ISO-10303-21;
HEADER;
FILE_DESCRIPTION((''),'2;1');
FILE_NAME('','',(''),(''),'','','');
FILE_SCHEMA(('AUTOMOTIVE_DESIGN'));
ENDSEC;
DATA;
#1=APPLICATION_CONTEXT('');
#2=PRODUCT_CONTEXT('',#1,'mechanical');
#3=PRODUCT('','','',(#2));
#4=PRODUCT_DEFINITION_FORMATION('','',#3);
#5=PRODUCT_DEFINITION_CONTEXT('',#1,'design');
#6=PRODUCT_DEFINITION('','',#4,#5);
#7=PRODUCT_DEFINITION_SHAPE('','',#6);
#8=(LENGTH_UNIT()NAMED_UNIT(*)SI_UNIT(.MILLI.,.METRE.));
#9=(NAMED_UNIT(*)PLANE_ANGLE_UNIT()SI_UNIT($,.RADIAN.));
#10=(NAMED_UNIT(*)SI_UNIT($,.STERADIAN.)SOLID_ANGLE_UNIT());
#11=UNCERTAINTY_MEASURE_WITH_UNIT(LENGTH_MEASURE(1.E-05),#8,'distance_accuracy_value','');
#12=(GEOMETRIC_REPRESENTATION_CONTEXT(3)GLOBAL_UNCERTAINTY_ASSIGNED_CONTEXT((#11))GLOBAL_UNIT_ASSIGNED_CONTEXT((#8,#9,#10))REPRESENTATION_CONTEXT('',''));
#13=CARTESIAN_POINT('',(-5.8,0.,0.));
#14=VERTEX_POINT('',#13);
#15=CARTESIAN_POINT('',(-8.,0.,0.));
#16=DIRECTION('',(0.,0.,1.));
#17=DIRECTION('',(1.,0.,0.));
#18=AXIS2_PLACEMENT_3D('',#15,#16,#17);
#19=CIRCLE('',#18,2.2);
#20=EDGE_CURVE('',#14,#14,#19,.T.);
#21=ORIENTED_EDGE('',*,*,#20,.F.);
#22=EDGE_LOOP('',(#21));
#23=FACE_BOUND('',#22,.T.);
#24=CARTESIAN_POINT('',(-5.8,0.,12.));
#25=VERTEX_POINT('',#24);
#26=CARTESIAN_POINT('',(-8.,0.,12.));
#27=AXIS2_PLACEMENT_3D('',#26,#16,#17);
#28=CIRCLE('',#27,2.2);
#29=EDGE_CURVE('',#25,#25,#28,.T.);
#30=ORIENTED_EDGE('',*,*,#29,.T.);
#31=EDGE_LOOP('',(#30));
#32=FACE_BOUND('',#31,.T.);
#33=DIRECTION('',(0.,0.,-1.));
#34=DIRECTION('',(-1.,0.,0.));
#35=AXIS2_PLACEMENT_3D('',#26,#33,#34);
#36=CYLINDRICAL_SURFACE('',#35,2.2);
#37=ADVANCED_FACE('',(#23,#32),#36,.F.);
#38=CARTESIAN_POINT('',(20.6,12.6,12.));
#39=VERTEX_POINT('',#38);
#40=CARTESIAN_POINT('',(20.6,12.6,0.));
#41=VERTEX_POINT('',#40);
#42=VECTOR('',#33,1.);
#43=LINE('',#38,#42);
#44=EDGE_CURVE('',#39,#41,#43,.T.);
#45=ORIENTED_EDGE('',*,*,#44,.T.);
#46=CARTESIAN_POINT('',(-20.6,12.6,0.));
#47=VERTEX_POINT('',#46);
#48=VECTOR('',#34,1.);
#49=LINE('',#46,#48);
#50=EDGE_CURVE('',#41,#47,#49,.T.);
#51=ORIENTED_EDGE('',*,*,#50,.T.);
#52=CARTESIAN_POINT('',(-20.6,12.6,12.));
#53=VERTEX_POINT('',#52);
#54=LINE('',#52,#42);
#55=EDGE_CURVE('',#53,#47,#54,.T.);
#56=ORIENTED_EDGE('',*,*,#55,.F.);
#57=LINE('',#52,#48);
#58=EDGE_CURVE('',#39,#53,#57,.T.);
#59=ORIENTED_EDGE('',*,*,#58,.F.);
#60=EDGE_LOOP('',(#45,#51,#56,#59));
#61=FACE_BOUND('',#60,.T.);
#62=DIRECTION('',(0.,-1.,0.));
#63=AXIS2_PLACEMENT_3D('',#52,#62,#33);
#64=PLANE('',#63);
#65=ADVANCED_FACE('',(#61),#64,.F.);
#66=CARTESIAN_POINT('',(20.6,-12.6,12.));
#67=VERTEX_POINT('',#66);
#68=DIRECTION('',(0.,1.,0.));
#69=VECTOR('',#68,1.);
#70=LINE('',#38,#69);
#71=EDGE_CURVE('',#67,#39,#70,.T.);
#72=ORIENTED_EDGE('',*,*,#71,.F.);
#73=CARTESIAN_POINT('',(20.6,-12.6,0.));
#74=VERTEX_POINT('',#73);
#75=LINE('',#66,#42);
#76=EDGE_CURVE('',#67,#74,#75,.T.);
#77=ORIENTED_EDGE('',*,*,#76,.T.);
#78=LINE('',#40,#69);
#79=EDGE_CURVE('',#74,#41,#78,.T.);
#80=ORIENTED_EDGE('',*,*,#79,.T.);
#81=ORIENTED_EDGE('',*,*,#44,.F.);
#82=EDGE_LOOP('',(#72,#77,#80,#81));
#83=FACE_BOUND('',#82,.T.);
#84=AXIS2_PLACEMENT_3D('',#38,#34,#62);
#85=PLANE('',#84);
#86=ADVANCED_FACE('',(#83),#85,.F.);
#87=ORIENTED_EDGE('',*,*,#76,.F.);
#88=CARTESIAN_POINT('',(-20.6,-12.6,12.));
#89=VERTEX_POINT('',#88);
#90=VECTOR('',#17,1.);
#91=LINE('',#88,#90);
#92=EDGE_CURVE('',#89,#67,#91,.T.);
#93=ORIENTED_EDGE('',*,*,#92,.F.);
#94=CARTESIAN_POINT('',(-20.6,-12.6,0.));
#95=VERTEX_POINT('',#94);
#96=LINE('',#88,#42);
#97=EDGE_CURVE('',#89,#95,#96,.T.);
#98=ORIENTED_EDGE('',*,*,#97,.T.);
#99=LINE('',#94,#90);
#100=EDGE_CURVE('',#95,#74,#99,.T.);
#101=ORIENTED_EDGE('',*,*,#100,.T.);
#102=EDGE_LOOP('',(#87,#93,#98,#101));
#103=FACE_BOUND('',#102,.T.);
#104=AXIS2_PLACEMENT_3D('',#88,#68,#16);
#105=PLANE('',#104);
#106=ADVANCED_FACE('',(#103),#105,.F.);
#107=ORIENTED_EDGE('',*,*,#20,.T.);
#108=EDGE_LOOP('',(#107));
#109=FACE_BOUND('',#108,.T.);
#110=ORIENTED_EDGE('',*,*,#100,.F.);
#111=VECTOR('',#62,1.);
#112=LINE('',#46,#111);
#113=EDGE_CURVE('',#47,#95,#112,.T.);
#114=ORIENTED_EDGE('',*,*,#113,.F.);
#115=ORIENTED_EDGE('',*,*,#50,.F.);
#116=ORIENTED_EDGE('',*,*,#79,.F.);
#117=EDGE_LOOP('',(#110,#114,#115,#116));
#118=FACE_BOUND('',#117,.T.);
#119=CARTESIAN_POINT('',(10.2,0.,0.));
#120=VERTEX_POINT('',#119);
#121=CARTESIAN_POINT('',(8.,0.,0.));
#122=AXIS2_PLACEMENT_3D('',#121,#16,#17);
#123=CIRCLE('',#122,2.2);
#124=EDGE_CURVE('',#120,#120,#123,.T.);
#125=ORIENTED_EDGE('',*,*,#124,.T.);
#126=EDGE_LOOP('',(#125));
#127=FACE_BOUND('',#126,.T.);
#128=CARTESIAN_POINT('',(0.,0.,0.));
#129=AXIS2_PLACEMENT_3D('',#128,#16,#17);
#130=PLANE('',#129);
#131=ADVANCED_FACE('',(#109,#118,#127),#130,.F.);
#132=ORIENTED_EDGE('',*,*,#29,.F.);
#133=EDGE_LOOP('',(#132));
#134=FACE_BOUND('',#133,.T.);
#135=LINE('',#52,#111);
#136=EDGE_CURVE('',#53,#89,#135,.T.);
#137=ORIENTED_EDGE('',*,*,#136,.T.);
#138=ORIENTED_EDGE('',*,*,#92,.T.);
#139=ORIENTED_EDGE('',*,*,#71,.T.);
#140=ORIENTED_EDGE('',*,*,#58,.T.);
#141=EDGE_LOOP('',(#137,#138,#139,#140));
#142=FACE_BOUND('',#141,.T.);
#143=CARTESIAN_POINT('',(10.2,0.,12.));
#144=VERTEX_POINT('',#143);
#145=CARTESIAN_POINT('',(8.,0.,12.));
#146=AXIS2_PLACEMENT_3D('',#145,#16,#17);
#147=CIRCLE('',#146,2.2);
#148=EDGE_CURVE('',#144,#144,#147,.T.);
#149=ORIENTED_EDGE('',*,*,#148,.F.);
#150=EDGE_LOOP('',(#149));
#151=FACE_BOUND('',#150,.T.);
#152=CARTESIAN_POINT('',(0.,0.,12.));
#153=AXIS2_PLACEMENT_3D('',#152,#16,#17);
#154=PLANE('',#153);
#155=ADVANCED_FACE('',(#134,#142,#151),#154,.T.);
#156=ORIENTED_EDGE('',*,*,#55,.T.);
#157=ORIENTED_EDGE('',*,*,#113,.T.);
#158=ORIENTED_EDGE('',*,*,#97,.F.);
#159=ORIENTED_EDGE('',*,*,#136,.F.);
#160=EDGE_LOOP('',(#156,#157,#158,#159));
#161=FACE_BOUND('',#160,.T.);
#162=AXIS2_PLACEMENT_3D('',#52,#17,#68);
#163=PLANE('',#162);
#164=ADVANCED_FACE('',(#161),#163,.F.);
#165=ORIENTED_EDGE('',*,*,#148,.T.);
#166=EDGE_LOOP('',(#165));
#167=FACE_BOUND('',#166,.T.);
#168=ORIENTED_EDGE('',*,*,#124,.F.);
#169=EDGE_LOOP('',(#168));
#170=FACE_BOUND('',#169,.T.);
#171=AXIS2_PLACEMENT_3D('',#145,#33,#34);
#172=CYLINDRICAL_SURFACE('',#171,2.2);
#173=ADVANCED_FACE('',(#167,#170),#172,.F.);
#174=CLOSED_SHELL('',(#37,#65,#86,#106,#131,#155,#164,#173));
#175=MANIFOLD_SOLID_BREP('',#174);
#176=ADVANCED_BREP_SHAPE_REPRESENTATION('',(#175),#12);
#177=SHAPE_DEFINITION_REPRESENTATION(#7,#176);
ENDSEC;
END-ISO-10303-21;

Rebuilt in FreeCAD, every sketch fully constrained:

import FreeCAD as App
import Part
import Sketcher
from FreeCAD import Vector
Q = App.Units.Quantity

doc = App.newDocument("Part")
body = doc.addObject("PartDesign::Body", "Body")

# Sketch on XY plane
sketch1 = body.newObject("Sketcher::SketchObject", "Sketch")
sketch1.AttachmentSupport = (doc.getObject("XY_Plane"), [""])
sketch1.MapMode = "FlatFace"
sketch1.addGeometry(Part.LineSegment(Vector(-20.6, 12.6, 0), Vector(-20.6, -12.6, 0)), False)
sketch1.addGeometry(Part.LineSegment(Vector(-20.6, -12.6, 0), Vector(20.6, -12.6, 0)), False)
sketch1.addGeometry(Part.LineSegment(Vector(20.6, -12.6, 0), Vector(20.6, 12.6, 0)), False)
sketch1.addGeometry(Part.LineSegment(Vector(20.6, 12.6, 0), Vector(-20.6, 12.6, 0)), False)
sketch1.addConstraint(Sketcher.Constraint("Coincident", 0, 2, 1, 1))
sketch1.addConstraint(Sketcher.Constraint("Coincident", 1, 2, 2, 1))
sketch1.addConstraint(Sketcher.Constraint("Coincident", 2, 2, 3, 1))
sketch1.addConstraint(Sketcher.Constraint("Coincident", 3, 2, 0, 1))
sketch1.addConstraint(Sketcher.Constraint("Vertical", 0))
sketch1.addConstraint(Sketcher.Constraint("Horizontal", 1))
sketch1.addConstraint(Sketcher.Constraint("Vertical", 2))
sketch1.addConstraint(Sketcher.Constraint("Horizontal", 3))
sketch1.addConstraint(Sketcher.Constraint("Symmetric", 0, 2, 2, 2, -1, 1))
sketch1.addConstraint(Sketcher.Constraint("DistanceX", 1, 1, 1, 2, Q("41.2 mm")))
sketch1.addConstraint(Sketcher.Constraint("DistanceY", 0, 2, 0, 1, Q("25.2 mm")))
pad1 = body.newObject("PartDesign::Pad", "Pad")
pad1.Profile = sketch1
pad1.Length = 12

# Sketch on XY plane
sketch2 = body.newObject("Sketcher::SketchObject", "Sketch001")
sketch2.AttachmentSupport = (doc.getObject("XY_Plane"), [""])
sketch2.MapMode = "FlatFace"
sketch2.addGeometry(Part.Circle(Vector(8, 0, 0), Vector(0, 0, 1), 2.2), False)
sketch2.addGeometry(Part.Circle(Vector(-8, 0, 0), Vector(0, 0, 1), 2.2), False)
sketch2.addConstraint(Sketcher.Constraint("Equal", 0, 1))
sketch2.addConstraint(Sketcher.Constraint("Symmetric", 0, 3, 1, 3, -1, 1))
sketch2.addConstraint(Sketcher.Constraint("PointOnObject", 0, 3, -1))
sketch2.addConstraint(Sketcher.Constraint("Diameter", 0, Q("4.4 mm")))
sketch2.addConstraint(Sketcher.Constraint("DistanceX", -1, 1, 0, 3, Q("8 mm")))
pocket1 = body.newObject("PartDesign::Pocket", "Pocket")
pocket1.Profile = sketch2
pocket1.Length = 12
pocket1.Reversed = True

doc.recompute()
